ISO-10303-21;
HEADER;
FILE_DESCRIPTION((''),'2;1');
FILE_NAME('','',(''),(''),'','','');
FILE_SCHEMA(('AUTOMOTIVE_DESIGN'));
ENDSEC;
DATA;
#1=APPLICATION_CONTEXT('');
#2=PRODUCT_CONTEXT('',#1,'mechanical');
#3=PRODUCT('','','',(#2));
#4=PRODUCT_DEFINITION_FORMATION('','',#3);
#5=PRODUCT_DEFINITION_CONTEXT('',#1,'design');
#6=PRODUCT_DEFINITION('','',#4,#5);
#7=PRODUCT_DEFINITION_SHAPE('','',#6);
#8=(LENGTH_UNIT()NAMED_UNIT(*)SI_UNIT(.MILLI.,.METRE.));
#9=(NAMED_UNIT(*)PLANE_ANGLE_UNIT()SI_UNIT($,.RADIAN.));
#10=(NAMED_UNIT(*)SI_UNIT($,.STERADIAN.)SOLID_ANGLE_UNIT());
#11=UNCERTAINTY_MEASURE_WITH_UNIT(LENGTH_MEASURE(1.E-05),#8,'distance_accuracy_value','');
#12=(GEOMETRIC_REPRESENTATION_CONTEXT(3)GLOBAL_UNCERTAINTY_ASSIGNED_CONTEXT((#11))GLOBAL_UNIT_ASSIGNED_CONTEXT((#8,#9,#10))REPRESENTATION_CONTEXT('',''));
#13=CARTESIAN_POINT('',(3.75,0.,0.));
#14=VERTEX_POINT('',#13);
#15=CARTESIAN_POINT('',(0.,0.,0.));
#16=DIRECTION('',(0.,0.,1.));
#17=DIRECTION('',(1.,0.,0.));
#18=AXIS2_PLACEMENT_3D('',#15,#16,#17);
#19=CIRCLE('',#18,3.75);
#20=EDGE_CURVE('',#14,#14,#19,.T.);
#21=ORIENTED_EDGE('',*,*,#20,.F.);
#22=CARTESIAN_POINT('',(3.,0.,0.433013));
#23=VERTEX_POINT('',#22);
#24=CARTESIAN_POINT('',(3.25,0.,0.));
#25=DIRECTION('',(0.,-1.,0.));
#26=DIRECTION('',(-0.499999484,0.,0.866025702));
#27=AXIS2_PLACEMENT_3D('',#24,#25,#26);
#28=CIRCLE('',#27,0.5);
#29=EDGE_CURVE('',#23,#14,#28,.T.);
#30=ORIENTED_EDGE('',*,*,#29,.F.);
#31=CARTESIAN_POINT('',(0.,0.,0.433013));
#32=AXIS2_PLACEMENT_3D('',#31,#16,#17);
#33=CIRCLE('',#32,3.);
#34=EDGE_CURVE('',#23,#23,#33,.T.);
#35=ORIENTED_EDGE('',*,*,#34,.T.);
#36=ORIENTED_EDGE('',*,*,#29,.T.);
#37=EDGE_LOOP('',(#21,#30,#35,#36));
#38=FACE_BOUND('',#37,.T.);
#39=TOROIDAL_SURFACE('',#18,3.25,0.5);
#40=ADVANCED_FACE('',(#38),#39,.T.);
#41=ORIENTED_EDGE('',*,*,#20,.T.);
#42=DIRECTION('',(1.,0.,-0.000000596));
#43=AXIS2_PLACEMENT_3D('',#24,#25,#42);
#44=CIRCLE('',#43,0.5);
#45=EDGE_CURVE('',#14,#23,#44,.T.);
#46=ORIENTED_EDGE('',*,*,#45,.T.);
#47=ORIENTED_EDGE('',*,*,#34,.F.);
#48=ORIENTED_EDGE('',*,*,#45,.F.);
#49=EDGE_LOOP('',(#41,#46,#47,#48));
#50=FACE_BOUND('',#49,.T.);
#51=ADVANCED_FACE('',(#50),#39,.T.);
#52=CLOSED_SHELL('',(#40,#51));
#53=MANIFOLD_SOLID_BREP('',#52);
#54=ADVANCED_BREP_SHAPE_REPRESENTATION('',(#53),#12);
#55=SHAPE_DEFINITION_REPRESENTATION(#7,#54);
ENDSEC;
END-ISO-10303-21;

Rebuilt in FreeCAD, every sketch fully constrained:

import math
import FreeCAD as App
import Part
import Sketcher
Q = App.Units.Quantity

doc = App.newDocument("Part")
body = doc.addObject("PartDesign::Body", "Body")

# Sketch on XZ plane
sketch1 = body.newObject("Sketcher::SketchObject", "Sketch")
sketch1.AttachmentSupport = (doc.getObject("XZ_Plane"), [""])
sketch1.MapMode = "FlatFace"
sketch1.addGeometry([
    Part.ArcOfCircle(Part.Circle(App.Vector(3.2, 0, 0), App.Vector(0, 0, 1), 0.5), math.radians(120), math.radians(360)),
    Part.ArcOfCircle(Part.Circle(App.Vector(3.2, 0, 0), App.Vector(0, 0, 1), 0.5), math.radians(0), math.radians(120)),
], False)
sketch1.addConstraint([
    Sketcher.Constraint("Tangent", 0, 1, 1, 2),
    Sketcher.Constraint("Coincident", 1, 1, 0, 2),
    Sketcher.Constraint("PointOnObject", 0, 3, -1),
    Sketcher.Constraint("PointOnObject", 1, 1, -1),
    Sketcher.Constraint("Radius", 0, Q("0.5 mm")),
    Sketcher.Constraint("DistanceX", -1, 1, 0, 1, Q("3 mm")),
    Sketcher.Constraint("DistanceX", -1, 1, 0, 3, Q("3.25 mm")),
])
revolution = body.newObject("PartDesign::Revolution", "Revolution")
revolution.Profile = sketch1
revolution.ReferenceAxis = (sketch1, ["V_Axis"])
revolution.Angle = 360

doc.recompute()
